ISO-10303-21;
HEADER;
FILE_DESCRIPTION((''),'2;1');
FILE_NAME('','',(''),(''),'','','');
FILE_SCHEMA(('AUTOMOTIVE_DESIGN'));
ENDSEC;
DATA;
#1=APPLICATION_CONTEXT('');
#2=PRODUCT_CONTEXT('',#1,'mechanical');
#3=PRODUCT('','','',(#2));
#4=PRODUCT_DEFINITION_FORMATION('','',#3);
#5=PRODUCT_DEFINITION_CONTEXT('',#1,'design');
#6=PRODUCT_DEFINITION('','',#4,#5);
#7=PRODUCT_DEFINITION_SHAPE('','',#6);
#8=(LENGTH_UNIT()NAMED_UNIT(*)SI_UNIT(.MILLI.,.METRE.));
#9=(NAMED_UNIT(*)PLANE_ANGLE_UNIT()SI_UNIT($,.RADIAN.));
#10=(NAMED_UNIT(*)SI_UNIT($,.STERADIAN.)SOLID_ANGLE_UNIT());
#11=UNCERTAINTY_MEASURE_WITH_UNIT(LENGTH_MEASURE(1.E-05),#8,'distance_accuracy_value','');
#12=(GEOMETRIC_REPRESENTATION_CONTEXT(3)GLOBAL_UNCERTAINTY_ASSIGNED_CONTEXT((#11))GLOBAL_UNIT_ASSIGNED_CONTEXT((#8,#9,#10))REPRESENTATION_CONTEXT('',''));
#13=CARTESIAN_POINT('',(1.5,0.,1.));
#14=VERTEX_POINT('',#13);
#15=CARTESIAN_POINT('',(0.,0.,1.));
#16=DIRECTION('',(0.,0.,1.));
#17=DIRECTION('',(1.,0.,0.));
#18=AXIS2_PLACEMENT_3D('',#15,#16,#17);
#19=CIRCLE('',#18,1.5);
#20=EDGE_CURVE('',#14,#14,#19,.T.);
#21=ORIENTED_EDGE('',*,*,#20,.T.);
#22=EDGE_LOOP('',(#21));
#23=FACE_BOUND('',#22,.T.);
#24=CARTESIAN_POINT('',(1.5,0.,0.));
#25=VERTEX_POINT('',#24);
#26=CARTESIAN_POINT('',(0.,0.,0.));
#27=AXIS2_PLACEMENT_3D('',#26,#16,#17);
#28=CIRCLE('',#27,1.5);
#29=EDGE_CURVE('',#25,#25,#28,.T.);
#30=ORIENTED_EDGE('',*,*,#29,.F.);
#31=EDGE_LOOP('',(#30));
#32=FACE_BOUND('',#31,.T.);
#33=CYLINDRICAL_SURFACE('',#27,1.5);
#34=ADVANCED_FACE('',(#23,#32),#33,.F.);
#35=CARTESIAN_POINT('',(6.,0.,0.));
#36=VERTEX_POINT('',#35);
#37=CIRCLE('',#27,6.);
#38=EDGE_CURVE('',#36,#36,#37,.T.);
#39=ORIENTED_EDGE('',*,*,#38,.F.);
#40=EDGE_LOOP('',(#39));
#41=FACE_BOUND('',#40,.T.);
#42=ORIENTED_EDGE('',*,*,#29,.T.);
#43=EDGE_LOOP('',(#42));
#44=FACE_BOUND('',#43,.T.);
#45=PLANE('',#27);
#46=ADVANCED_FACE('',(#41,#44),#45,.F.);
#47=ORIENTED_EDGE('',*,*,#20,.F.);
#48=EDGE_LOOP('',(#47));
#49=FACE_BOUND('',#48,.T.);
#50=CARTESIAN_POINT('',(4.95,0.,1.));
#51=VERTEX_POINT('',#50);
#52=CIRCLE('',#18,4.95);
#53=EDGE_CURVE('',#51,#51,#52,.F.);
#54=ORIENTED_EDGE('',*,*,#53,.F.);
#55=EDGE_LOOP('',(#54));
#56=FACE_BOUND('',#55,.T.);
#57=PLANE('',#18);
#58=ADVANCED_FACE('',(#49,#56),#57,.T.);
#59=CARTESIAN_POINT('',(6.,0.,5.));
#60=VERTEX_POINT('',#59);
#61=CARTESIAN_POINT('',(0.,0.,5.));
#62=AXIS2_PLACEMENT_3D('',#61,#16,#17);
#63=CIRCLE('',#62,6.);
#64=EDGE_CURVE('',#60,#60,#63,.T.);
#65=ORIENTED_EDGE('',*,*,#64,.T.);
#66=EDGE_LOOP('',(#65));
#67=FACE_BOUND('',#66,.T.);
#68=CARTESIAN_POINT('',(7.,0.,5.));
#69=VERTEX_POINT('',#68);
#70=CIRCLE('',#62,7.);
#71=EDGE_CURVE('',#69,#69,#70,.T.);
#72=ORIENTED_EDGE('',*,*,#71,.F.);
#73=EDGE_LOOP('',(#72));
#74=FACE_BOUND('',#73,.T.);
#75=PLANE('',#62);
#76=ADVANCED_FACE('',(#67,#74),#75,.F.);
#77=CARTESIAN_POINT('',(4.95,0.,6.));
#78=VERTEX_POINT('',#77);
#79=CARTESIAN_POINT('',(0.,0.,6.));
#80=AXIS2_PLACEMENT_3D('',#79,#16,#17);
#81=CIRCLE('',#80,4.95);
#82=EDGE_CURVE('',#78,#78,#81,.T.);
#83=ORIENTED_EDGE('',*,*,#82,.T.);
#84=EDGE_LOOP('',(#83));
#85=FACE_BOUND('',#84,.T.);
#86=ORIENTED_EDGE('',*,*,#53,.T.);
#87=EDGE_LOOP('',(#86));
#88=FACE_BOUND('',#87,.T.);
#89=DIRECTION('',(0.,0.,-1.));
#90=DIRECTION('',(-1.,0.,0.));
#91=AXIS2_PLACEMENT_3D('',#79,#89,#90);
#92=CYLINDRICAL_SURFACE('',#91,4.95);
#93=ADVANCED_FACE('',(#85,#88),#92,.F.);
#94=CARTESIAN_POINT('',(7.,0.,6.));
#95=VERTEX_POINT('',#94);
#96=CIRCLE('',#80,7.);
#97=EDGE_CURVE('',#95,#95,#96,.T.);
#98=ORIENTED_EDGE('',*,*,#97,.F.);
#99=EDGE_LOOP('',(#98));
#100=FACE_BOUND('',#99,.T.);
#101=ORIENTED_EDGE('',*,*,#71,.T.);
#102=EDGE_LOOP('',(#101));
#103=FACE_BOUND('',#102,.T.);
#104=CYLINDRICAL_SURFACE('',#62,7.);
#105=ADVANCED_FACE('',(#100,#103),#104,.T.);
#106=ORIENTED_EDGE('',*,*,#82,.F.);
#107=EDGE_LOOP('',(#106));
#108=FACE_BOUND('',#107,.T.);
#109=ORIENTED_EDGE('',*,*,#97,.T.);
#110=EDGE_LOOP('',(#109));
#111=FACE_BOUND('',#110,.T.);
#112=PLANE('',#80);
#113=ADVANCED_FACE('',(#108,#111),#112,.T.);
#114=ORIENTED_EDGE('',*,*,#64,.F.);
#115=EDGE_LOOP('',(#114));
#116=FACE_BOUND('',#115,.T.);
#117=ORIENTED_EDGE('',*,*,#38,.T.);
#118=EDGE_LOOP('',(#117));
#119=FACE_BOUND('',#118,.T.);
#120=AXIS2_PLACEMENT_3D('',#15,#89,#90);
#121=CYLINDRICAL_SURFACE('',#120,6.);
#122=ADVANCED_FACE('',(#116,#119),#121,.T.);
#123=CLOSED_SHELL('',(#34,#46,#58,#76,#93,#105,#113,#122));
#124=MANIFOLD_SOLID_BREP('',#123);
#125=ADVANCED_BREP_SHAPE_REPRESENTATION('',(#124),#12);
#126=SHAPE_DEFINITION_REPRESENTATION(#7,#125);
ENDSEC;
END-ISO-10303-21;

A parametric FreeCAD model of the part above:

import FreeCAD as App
import Part
import Sketcher

doc = App.newDocument("Part")
body = doc.addObject("PartDesign::Body", "Body")

# Sketch on XY plane
sketch1 = body.newObject("Sketcher::SketchObject", "Sketch")
sketch1.AttachmentSupport = (doc.getObject("XY_Plane"), [""])
sketch1.MapMode = "FlatFace"
sketch1.addGeometry(Part.Circle(App.Vector(0, 0, 0), App.Vector(0, 0, 1), 6), False)
sketch1.addConstraint([
    Sketcher.Constraint("Coincident", 0, 3, -1, 1),
    Sketcher.Constraint("Diameter", 0, 12.0),
])
pad1 = body.newObject("PartDesign::Pad", "Pad")
pad1.Profile = sketch1
pad1.Length = 1

# Sketch on XY plane
sketch2 = body.newObject("Sketcher::SketchObject", "Sketch001")
sketch2.AttachmentSupport = (doc.getObject("XY_Plane"), [""])
sketch2.MapMode = "FlatFace"
sketch2.AttachmentOffset = App.Placement(App.Vector(0, 0, 1), App.Rotation())
sketch2.addGeometry([
    Part.Circle(App.Vector(0, 0, 0), App.Vector(0, 0, 1), 6),
    Part.Circle(App.Vector(0, 0, 0), App.Vector(0, 0, 1), 4.95),
], False)
sketch2.addConstraint([
    Sketcher.Constraint("Coincident", 0, 3, -1, 1),
    Sketcher.Constraint("Coincident", 1, 3, -1, 1),
    Sketcher.Constraint("Diameter", 0, 12.0),
    Sketcher.Constraint("Diameter", 1, 9.9),
])
pad2 = body.newObject("PartDesign::Pad", "Pad001")
pad2.Profile = sketch2
pad2.Length = 5

# Sketch on XY plane
sketch3 = body.newObject("Sketcher::SketchObject", "Sketch002")
sketch3.AttachmentSupport = (doc.getObject("XY_Plane"), [""])
sketch3.MapMode = "FlatFace"
sketch3.AttachmentOffset = App.Placement(App.Vector(0, 0, 6), App.Rotation())
sketch3.addGeometry(Part.Circle(App.Vector(0, 0, 0), App.Vector(0, 0, 1), 7), False)
sketch3.addConstraint([
    Sketcher.Constraint("Coincident", 0, 3, -1, 1),
    Sketcher.Constraint("Diameter", 0, 14.0),
])
pad3 = body.newObject("PartDesign::Pad", "Pad002")
pad3.Profile = sketch3
pad3.Length = 1
pad3.Reversed = True

# Sketch on XY plane
sketch4 = body.newObject("Sketcher::SketchObject", "Sketch003")
sketch4.AttachmentSupport = (doc.getObject("XY_Plane"), [""])
sketch4.MapMode = "FlatFace"
sketch4.AttachmentOffset = App.Placement(App.Vector(0, 0, 1), App.Rotation())
sketch4.addGeometry(Part.Circle(App.Vector(0, 0, 0), App.Vector(0, 0, 1), 4.95), False)
sketch4.addConstraint([
    Sketcher.Constraint("Coincident", 0, 3, -1, 1),
    Sketcher.Constraint("Diameter", 0, 9.9),
])
pocket1 = body.newObject("PartDesign::Pocket", "Pocket")
pocket1.Profile = sketch4
pocket1.Length = 5
pocket1.Reversed = True

# Sketch on XY plane
sketch5 = body.newObject("Sketcher::SketchObject", "Sketch004")
sketch5.AttachmentSupport = (doc.getObject("XY_Plane"), [""])
sketch5.MapMode = "FlatFace"
sketch5.AttachmentOffset = App.Placement(App.Vector(0, 0, 1), App.Rotation())
sketch5.addGeometry(Part.Circle(App.Vector(0, 0, 0), App.Vector(0, 0, 1), 1.5), False)
sketch5.addConstraint([
    Sketcher.Constraint("Coincident", 0, 3, -1, 1),
    Sketcher.Constraint("Diameter", 0, 3.0),
])
pocket2 = body.newObject("PartDesign::Pocket", "Pocket001")
pocket2.Profile = sketch5
pocket2.Length = 1

doc.recompute()
